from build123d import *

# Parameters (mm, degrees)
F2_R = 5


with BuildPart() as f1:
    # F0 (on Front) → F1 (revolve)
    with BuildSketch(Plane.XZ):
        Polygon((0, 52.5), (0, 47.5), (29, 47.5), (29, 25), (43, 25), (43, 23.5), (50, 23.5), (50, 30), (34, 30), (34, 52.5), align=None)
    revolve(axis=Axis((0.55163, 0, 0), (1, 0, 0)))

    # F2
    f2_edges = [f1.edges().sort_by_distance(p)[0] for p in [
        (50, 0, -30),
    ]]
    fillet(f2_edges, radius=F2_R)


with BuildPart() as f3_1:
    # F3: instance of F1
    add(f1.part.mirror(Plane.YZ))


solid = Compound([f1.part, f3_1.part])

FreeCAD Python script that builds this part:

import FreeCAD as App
import Part
import Sketcher

V = App.Vector
Q = App.Units.Quantity


def edges_at(feature, points):
    """Names of the edges that pass closest to the given points."""
    edges = feature.Shape.Edges
    near = lambda p: min(range(len(edges)), key=lambda i: edges[i].distToShape(Part.Vertex(*p))[0])
    return sorted({f"Edge{near(p) + 1}" for p in points})

doc = App.newDocument("Part")
body = doc.addObject("PartDesign::Body", "Body")

# Sketch on XZ plane
sketch1 = body.newObject("Sketcher::SketchObject", "Sketch")
sketch1.AttachmentSupport = (doc.getObject("XZ_Plane"), [""])
sketch1.MapMode = "FlatFace"
sketch1.addGeometry([
    Part.LineSegment(V(0, 52.5, 0), V(0, 47.5, 0)),  # 0
    Part.LineSegment(V(0, 47.5, 0), V(29, 47.5, 0)),  # 1
    Part.LineSegment(V(29, 47.5, 0), V(29, 25, 0)),  # 2
    Part.LineSegment(V(29, 25, 0), V(43, 25, 0)),  # 3
    Part.LineSegment(V(43, 25, 0), V(43, 23.5, 0)),  # 4
    Part.LineSegment(V(43, 23.5, 0), V(50, 23.5, 0)),  # 5
    Part.LineSegment(V(50, 23.5, 0), V(50, 30, 0)),  # 6
    Part.LineSegment(V(50, 30, 0), V(34, 30, 0)),  # 7
    Part.LineSegment(V(34, 30, 0), V(34, 52.5, 0)),  # 8
    Part.LineSegment(V(34, 52.5, 0), V(0, 52.5, 0)),  # 9
], False)
sketch1.addConstraint([
    Sketcher.Constraint("Coincident", 0, 2, 1, 1),
    Sketcher.Constraint("Coincident", 1, 2, 2, 1),
    Sketcher.Constraint("Coincident", 2, 2, 3, 1),
    Sketcher.Constraint("Coincident", 3, 2, 4, 1),
    Sketcher.Constraint("Coincident", 4, 2, 5, 1),
    Sketcher.Constraint("Coincident", 5, 2, 6, 1),
    Sketcher.Constraint("Coincident", 6, 2, 7, 1),
    Sketcher.Constraint("Coincident", 7, 2, 8, 1),
    Sketcher.Constraint("Coincident", 8, 2, 9, 1),
    Sketcher.Constraint("Coincident", 9, 2, 0, 1),
    Sketcher.Constraint("Vertical", 0),
    Sketcher.Constraint("Horizontal", 1),
    Sketcher.Constraint("Vertical", 2),
    Sketcher.Constraint("Horizontal", 3),
    Sketcher.Constraint("Vertical", 4),
    Sketcher.Constraint("Horizontal", 5),
    Sketcher.Constraint("Vertical", 6),
    Sketcher.Constraint("Horizontal", 7),
    Sketcher.Constraint("Vertical", 8),
    Sketcher.Constraint("Horizontal", 9),
    Sketcher.Constraint("PointOnObject", 0, 2, -2),
    Sketcher.Constraint("Equal", 2, 8),
    Sketcher.Constraint("DistanceX", 1, 1, 1, 2, Q("29 mm")),
    Sketcher.Constraint("DistanceX", 3, 1, 3, 2, Q("14 mm")),
    Sketcher.Constraint("DistanceX", 5, 1, 5, 2, Q("7 mm")),
    Sketcher.Constraint("DistanceX", 7, 2, 7, 1, Q("16 mm")),
    Sketcher.Constraint("DistanceY", 0, 2, 0, 1, Q("5 mm")),
    Sketcher.Constraint("DistanceY", 2, 2, 2, 1, Q("22.5 mm")),
    Sketcher.Constraint("DistanceY", 4, 2, 4, 1, Q("1.5 mm")),
    Sketcher.Constraint("DistanceY", -1, 1, 2, 2, Q("25 mm")),
])
revolution = body.newObject("PartDesign::Revolution", "Revolution")
revolution.Profile = sketch1
revolution.ReferenceAxis = (sketch1, ["H_Axis"])
revolution.Angle = 360
doc.recompute()

fillet = body.newObject("PartDesign::Fillet", "Fillet")
fillet.Base = (revolution, edges_at(revolution, [(50, 0, -30)]))
fillet.Radius = 5
body2 = doc.addObject("PartDesign::Body", "Body001")
doc.recompute()

mirroring = doc.addObject("Part::Mirroring", "Mirroring")
mirroring.Source = body
mirroring.Base = V(0, 0, 0)
mirroring.Normal = V(1, 0, 0)
body2.BaseFeature = mirroring
doc.recompute()
mirroring.Visibility = False

doc.recompute()
